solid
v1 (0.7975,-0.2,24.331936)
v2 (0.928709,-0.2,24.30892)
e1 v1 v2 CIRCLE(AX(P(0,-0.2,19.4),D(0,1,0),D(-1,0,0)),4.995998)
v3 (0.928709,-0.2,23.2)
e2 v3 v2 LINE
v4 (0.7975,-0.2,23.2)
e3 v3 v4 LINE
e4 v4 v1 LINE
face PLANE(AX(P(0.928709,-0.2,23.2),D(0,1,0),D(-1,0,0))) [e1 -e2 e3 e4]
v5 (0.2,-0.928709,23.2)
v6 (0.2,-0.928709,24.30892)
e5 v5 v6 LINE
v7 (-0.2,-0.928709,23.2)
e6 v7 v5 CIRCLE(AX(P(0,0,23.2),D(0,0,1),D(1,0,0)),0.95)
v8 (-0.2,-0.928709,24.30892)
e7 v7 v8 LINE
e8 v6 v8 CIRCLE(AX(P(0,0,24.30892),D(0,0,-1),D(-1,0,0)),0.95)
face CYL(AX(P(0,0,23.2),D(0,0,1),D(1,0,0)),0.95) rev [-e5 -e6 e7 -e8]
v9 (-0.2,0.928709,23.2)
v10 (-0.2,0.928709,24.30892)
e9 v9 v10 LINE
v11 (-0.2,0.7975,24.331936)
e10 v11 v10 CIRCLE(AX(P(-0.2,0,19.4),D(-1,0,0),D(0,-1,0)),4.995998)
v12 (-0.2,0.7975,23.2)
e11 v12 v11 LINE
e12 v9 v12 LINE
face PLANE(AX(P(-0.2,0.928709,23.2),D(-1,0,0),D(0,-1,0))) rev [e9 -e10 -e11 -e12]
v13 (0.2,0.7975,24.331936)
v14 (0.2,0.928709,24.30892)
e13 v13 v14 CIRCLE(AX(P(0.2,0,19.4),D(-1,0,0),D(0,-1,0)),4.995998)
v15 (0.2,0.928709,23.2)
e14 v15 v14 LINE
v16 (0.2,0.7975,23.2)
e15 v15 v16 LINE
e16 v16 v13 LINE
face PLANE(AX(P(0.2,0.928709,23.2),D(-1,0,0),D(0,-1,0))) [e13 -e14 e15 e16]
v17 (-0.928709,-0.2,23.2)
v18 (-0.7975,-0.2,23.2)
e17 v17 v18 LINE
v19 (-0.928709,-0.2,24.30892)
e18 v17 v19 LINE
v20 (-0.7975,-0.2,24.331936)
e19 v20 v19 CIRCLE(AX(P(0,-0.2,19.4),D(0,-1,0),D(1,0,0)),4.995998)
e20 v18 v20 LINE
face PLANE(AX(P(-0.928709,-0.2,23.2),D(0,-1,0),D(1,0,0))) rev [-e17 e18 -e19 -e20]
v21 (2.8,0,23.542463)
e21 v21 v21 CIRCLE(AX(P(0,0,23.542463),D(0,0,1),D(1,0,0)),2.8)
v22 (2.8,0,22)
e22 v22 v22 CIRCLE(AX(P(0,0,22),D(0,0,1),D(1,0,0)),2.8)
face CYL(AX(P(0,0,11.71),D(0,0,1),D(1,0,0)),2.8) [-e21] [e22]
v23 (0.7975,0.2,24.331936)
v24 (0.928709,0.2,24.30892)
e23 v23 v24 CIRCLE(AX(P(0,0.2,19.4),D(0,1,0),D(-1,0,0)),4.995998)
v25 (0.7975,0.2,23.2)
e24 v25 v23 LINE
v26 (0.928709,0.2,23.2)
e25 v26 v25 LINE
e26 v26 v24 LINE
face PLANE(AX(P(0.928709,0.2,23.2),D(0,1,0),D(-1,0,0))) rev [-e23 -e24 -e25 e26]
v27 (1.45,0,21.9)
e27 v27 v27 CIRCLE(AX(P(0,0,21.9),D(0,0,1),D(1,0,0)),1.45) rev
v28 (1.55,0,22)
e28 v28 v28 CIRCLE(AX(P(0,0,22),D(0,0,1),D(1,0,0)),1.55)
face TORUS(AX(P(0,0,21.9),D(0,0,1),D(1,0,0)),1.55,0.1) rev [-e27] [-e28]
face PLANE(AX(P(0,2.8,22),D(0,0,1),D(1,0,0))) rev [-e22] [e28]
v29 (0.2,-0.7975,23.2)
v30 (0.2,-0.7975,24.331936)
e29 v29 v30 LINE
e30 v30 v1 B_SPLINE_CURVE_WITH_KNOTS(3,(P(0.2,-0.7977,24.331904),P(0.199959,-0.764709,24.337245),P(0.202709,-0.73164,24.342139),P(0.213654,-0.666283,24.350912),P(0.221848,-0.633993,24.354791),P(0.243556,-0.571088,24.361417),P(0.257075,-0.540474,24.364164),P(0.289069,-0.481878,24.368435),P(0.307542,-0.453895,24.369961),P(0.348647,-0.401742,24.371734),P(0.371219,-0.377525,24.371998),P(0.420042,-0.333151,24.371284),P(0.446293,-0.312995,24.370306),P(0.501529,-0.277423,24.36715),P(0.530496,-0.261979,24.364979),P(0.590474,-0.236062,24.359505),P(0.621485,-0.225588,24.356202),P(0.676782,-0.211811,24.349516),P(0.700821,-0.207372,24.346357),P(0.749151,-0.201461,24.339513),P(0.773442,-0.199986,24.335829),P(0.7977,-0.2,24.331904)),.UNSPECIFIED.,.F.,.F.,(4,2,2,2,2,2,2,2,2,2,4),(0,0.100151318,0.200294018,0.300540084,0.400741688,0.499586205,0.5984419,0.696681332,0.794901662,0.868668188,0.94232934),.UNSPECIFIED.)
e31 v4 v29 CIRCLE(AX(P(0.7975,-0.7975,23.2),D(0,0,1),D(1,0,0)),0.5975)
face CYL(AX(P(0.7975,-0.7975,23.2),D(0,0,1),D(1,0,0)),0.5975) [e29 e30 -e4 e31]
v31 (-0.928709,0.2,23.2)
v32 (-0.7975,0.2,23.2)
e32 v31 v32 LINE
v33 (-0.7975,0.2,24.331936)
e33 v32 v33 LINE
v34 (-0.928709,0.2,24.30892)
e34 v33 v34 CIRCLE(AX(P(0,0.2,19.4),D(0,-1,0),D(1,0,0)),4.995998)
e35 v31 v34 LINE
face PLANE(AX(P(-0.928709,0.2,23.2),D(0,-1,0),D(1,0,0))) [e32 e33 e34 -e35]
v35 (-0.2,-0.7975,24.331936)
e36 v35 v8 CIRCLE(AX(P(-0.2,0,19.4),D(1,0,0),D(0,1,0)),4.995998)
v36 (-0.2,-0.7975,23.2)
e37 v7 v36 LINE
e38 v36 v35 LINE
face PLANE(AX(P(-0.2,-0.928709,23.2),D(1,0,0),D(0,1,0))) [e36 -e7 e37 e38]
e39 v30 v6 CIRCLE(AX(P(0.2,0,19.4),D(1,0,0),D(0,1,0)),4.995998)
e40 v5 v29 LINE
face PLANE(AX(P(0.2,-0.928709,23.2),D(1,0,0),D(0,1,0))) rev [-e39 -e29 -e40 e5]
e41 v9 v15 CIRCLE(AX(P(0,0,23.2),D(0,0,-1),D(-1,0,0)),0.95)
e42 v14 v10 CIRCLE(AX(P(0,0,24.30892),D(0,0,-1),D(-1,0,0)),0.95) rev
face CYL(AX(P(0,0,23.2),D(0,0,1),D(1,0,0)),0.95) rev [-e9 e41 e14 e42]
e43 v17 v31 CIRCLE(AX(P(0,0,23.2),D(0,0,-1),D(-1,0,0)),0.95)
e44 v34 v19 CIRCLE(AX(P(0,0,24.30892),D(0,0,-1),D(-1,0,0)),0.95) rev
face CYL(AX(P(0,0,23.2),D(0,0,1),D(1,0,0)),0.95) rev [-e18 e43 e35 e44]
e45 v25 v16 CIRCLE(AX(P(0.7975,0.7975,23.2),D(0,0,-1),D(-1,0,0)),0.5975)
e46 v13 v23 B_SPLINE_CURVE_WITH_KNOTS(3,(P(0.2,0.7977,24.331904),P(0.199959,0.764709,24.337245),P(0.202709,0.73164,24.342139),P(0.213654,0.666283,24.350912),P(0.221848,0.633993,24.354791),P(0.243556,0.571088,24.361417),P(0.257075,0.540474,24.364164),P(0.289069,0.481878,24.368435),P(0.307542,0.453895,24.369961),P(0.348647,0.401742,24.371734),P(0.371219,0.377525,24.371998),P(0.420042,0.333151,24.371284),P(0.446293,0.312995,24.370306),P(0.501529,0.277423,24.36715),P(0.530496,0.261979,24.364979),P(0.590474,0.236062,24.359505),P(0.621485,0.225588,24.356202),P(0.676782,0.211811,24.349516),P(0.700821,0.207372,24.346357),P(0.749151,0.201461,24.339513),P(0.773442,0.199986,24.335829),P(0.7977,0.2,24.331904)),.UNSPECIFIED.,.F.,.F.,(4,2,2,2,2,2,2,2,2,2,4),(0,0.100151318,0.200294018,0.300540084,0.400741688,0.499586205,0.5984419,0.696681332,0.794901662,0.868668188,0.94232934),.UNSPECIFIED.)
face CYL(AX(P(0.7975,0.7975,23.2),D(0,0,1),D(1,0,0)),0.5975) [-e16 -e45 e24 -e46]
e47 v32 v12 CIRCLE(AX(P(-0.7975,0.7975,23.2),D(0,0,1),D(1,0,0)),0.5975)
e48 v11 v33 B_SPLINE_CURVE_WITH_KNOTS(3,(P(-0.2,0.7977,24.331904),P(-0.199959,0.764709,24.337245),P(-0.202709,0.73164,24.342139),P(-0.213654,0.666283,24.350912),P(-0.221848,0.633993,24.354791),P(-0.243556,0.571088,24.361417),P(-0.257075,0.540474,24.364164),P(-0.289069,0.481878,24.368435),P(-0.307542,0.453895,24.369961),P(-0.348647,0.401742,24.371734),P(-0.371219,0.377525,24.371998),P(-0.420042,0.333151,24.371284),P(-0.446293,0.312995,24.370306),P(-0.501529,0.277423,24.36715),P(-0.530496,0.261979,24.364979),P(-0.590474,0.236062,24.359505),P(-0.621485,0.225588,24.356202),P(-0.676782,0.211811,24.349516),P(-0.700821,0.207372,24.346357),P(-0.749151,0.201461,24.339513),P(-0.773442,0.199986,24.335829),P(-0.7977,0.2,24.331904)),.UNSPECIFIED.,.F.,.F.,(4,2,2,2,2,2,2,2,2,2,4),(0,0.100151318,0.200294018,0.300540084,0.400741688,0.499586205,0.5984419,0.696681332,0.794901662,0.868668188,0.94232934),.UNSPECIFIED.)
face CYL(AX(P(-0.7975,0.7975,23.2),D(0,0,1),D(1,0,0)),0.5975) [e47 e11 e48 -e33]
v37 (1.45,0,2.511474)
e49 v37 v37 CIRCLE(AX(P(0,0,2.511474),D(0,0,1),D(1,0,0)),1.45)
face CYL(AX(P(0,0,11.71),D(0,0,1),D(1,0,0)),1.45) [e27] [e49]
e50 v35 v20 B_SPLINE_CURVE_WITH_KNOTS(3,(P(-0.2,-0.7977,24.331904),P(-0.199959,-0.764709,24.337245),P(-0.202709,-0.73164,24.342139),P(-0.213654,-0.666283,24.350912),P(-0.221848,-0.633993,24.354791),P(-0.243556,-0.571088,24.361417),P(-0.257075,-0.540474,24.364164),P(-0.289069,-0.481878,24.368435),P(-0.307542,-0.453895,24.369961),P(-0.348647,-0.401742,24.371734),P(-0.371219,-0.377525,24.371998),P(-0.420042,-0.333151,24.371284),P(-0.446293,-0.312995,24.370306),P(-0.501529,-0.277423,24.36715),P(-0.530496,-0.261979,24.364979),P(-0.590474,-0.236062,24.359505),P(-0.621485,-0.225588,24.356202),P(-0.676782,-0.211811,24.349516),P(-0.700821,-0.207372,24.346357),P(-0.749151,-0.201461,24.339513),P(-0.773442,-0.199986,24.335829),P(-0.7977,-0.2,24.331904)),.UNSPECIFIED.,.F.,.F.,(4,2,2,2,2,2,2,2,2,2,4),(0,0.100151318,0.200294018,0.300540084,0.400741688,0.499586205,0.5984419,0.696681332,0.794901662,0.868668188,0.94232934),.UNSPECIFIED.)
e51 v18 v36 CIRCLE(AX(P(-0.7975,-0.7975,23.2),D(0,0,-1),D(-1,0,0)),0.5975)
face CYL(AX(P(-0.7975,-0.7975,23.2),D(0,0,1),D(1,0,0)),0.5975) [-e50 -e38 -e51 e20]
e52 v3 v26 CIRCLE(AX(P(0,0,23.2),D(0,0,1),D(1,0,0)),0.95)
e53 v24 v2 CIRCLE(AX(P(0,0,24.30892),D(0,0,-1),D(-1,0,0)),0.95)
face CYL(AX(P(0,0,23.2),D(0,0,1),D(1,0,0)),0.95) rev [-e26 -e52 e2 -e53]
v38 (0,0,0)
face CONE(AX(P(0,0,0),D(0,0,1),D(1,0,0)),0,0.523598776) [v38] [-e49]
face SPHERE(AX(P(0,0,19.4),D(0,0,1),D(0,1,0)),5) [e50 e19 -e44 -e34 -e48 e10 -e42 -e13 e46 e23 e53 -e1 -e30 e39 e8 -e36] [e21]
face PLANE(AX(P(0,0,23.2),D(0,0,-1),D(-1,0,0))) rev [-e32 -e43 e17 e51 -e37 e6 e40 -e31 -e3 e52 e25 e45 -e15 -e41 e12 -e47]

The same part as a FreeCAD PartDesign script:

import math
import FreeCAD as App
import Part
import Sketcher
from FreeCAD import Vector
Q = App.Units.Quantity


def edges_at(feature, points):
    """Names of the edges that pass closest to the given points."""
    edges = feature.Shape.Edges
    near = lambda p: min(range(len(edges)), key=lambda i: edges[i].distToShape(Part.Vertex(*p))[0])
    return sorted({f"Edge{near(p) + 1}" for p in points})

doc = App.newDocument("Part")
body = doc.addObject("PartDesign::Body", "Body")

sketch1 = body.newObject("Sketcher::SketchObject", "Sketch")
sketch1.AttachmentSupport = (doc.getObject("YZ_Plane"), [""])
sketch1.MapMode = "FlatFace"
sketch1.addGeometry([
    Part.LineSegment(Vector(0, 24.4, 0), Vector(0, 0, 0)),
    Part.LineSegment(Vector(0, 0, 0), Vector(1.45, 2.511474, 0)),
    Part.LineSegment(Vector(1.45, 2.511474, 0), Vector(1.45, 22, 0)),
    Part.LineSegment(Vector(1.45, 22, 0), Vector(2.8, 22, 0)),
    Part.LineSegment(Vector(2.8, 22, 0), Vector(2.8, 23.542463, 0)),
    Part.ArcOfCircle(Part.Circle(Vector(0, 19.4, 0), Vector(0, 0, 1), 5), math.radians(55.944202), math.radians(90)),
], False)
sketch1.addConstraint([
    Sketcher.Constraint("Coincident", 0, 2, 1, 1),
    Sketcher.Constraint("Coincident", 1, 2, 2, 1),
    Sketcher.Constraint("Coincident", 2, 2, 3, 1),
    Sketcher.Constraint("Coincident", 3, 2, 4, 1),
    Sketcher.Constraint("Coincident", 4, 2, 5, 1),
    Sketcher.Constraint("Coincident", 5, 2, 0, 1),
    Sketcher.Constraint("Vertical", 0),
    Sketcher.Constraint("Vertical", 2),
    Sketcher.Constraint("Horizontal", 3),
    Sketcher.Constraint("Vertical", 4),
    Sketcher.Constraint("Coincident", 0, 2, -1, 1),
    Sketcher.Constraint("PointOnObject", 5, 3, -2),
    Sketcher.Constraint("Radius", 5, Q("5 mm")),
    Sketcher.Constraint("Angle", 1, Q("60 deg")),
    Sketcher.Constraint("DistanceY", 0, 2, 0, 1, Q("24.4 mm")),
    Sketcher.Constraint("DistanceY", -1, 1, 2, 2, Q("22 mm")),
    Sketcher.Constraint("Distance", 1, Q("2.9 mm")),
    Sketcher.Constraint("DistanceX", 3, 1, 3, 2, Q("1.35 mm")),
])
revolution = body.newObject("PartDesign::Revolution", "Revolution")
revolution.Profile = sketch1
revolution.ReferenceAxis = (sketch1, ["V_Axis"])
revolution.Angle = 360

sketch2 = body.newObject("Sketcher::SketchObject", "Sketch001")
sketch2.AttachmentSupport = (doc.getObject("XY_Plane"), [""])
sketch2.MapMode = "FlatFace"
sketch2.AttachmentOffset = App.Placement(Vector(0, 0, 24.4), App.Rotation())
sketch2.addGeometry([
    Part.LineSegment(Vector(0.2, 0.7975, 0), Vector(0.2, 0.928709, 0)),
    Part.ArcOfCircle(Part.Circle(Vector(0, 0, 0), Vector(0, 0, 1), 0.95), math.radians(77.846803), math.radians(102.153197)),
    Part.LineSegment(Vector(-0.2, 0.928709, 0), Vector(-0.2, 0.7975, 0)),
    Part.ArcOfCircle(Part.Circle(Vector(-0.7975, 0.7975, 0), Vector(0, 0, 1), 0.5975), math.radians(-90), math.radians(0)),
    Part.LineSegment(Vector(-0.7975, 0.2, 0), Vector(-0.928709, 0.2, 0)),
    Part.ArcOfCircle(Part.Circle(Vector(0, 0, 0), Vector(0, 0, 1), 0.95), math.radians(167.846803), math.radians(192.153197)),
    Part.LineSegment(Vector(-0.928709, -0.2, 0), Vector(-0.7975, -0.2, 0)),
    Part.ArcOfCircle(Part.Circle(Vector(-0.7975, -0.7975, 0), Vector(0, 0, 1), 0.5975), math.radians(0), math.radians(90)),
    Part.LineSegment(Vector(-0.2, -0.7975, 0), Vector(-0.2, -0.928709, 0)),
    Part.ArcOfCircle(Part.Circle(Vector(0, 0, 0), Vector(0, 0, 1), 0.95), math.radians(-102.153197), math.radians(-77.846803)),
    Part.LineSegment(Vector(0.2, -0.928709, 0), Vector(0.2, -0.7975, 0)),
    Part.ArcOfCircle(Part.Circle(Vector(0.7975, -0.7975, 0), Vector(0, 0, 1), 0.5975), math.radians(90), math.radians(180)),
    Part.LineSegment(Vector(0.7975, -0.2, 0), Vector(0.928709, -0.2, 0)),
    Part.ArcOfCircle(Part.Circle(Vector(0, 0, 0), Vector(0, 0, 1), 0.95), math.radians(-12.153197), math.radians(12.153197)),
    Part.LineSegment(Vector(0.928709, 0.2, 0), Vector(0.7975, 0.2, 0)),
    Part.ArcOfCircle(Part.Circle(Vector(0.7975, 0.7975, 0), Vector(0, 0, 1), 0.5975), math.radians(180), math.radians(270)),
], False)
sketch2.addConstraint([
    Sketcher.Constraint("Coincident", 0, 2, 1, 1),
    Sketcher.Constraint("Coincident", 1, 2, 2, 1),
    Sketcher.Constraint("Tangent", 2, 2, 3, 2),
    Sketcher.Constraint("Tangent", 3, 1, 4, 1),
    Sketcher.Constraint("Coincident", 4, 2, 5, 1),
    Sketcher.Constraint("Coincident", 5, 2, 6, 1),
    Sketcher.Constraint("Tangent", 6, 2, 7, 2),
    Sketcher.Constraint("Tangent", 7, 1, 8, 1),
    Sketcher.Constraint("Coincident", 8, 2, 9, 1),
    Sketcher.Constraint("Coincident", 9, 2, 10, 1),
    Sketcher.Constraint("Tangent", 10, 2, 11, 2),
    Sketcher.Constraint("Tangent", 11, 1, 12, 1),
    Sketcher.Constraint("Coincident", 12, 2, 13, 1),
    Sketcher.Constraint("Coincident", 13, 2, 14, 1),
    Sketcher.Constraint("Tangent", 14, 2, 15, 2),
    Sketcher.Constraint("Tangent", 15, 1, 0, 1),
    Sketcher.Constraint("Vertical", 0),
    Sketcher.Constraint("Vertical", 2),
    Sketcher.Constraint("Horizontal", 4),
    Sketcher.Constraint("Horizontal", 6),
    Sketcher.Constraint("Vertical", 8),
    Sketcher.Constraint("Vertical", 10),
    Sketcher.Constraint("Horizontal", 12),
    Sketcher.Constraint("Horizontal", 14),
    Sketcher.Constraint("Coincident", 1, 3, -1, 1),
    Sketcher.Constraint("Coincident", 5, 3, -1, 1),
    Sketcher.Constraint("Coincident", 9, 3, -1, 1),
    Sketcher.Constraint("Coincident", 13, 3, -1, 1),
    Sketcher.Constraint("Equal", 1, 5),
    Sketcher.Constraint("Equal", 3, 7),
    Sketcher.Constraint("Equal", 5, 9),
    Sketcher.Constraint("Equal", 7, 11),
    Sketcher.Constraint("Equal", 9, 13),
    Sketcher.Constraint("Equal", 11, 15),
    Sketcher.Constraint("Symmetric", 3, 3, 11, 3, -1, 1),
    Sketcher.Constraint("Symmetric", 7, 3, 15, 3, -1, 1),
    Sketcher.Constraint("Symmetric", 7, 3, 11, 3, -2),
    Sketcher.Constraint("Equal", 14, 0),
    Sketcher.Constraint("Radius", 1, Q("0.95 mm")),
    Sketcher.Constraint("DistanceX", -1, 1, 0, 2, Q("0.2 mm")),
    Sketcher.Constraint("Radius", 3, Q("0.5975 mm")),
])
pocket1 = body.newObject("PartDesign::Pocket", "Pocket")
pocket1.Profile = sketch2
pocket1.Length = 1.2
doc.recompute()

fillet = body.newObject("PartDesign::Fillet", "Fillet")
fillet.Base = (pocket1, edges_at(pocket1, [(-1.45, 0, 22)]))
fillet.Radius = 0.1

doc.recompute()
